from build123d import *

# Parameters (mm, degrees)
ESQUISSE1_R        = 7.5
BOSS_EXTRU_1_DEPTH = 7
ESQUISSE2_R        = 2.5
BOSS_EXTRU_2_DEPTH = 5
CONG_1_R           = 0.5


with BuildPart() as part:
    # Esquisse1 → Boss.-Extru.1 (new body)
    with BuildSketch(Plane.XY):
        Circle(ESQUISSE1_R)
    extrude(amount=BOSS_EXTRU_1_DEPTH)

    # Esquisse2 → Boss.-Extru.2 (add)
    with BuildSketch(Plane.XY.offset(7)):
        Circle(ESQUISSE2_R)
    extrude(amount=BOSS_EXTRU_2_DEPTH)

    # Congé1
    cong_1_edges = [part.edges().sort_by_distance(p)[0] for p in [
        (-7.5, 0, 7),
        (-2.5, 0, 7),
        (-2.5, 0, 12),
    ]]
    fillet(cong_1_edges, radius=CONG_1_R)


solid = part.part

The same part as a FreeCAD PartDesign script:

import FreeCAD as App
import Part
import Sketcher

V = App.Vector
Q = App.Units.Quantity


def edges_at(feature, points):
    """Names of the edges that pass closest to the given points."""
    edges = feature.Shape.Edges
    near = lambda p: min(range(len(edges)), key=lambda i: edges[i].distToShape(Part.Vertex(*p))[0])
    return sorted({f"Edge{near(p) + 1}" for p in points})

doc = App.newDocument("Part")
params = doc.addObject("Spreadsheet::Sheet", "Params")
for row, (alias, value) in enumerate([
    ("sketch1_diameter", "15 mm"),
    ("pad1_length", "7 mm"),
    ("sketch2_diameter", "5 mm"),
    ("pad2_length", "5 mm"),
    ("fillet_radius", "0.5 mm"),
], start=1):
    params.set(f"A{row}", alias)
    params.set(f"B{row}", "=" + value)
    params.setAlias(f"B{row}", alias)

body = doc.addObject("PartDesign::Body", "Body")

sketch1 = body.newObject("Sketcher::SketchObject", "Sketch")
sketch1.AttachmentSupport = (doc.getObject("XY_Plane"), [""])
sketch1.MapMode = "FlatFace"
sketch1.addGeometry(Part.Circle(V(0, 0, 0), V(0, 0, 1), 8), False)
sketch1.addConstraint([
    Sketcher.Constraint("Coincident", 0, 3, -1, 1),
    Sketcher.Constraint("Diameter", 0, Q("15 mm")),
])
sketch1.setExpression("Constraints[1]", "Params.sketch1_diameter")
pad1 = body.newObject("PartDesign::Pad", "Pad")
pad1.Profile = sketch1
pad1.setExpression("Length", "Params.pad1_length")

sketch2 = body.newObject("Sketcher::SketchObject", "Sketch001")
sketch2.AttachmentSupport = (doc.getObject("XY_Plane"), [""])
sketch2.MapMode = "FlatFace"
sketch2.AttachmentOffset = App.Placement(V(0, 0, 7), App.Rotation())
sketch2.addGeometry(Part.Circle(V(0, 0, 0), V(0, 0, 1), 2.5), False)
sketch2.addConstraint([
    Sketcher.Constraint("Coincident", 0, 3, -1, 1),
    Sketcher.Constraint("Diameter", 0, Q("5 mm")),
])
sketch2.setExpression("Constraints[1]", "Params.sketch2_diameter")
pad2 = body.newObject("PartDesign::Pad", "Pad001")
pad2.Profile = sketch2
pad2.setExpression("Length", "Params.pad2_length")
doc.recompute()

fillet = body.newObject("PartDesign::Fillet", "Fillet")
fillet.Base = (pad2, edges_at(pad2, [(-7.5, 0, 7), (-2.5, 0, 7), (-2.5, 0, 12)]))
fillet.setExpression("Radius", "Params.fillet_radius")

doc.recompute()
